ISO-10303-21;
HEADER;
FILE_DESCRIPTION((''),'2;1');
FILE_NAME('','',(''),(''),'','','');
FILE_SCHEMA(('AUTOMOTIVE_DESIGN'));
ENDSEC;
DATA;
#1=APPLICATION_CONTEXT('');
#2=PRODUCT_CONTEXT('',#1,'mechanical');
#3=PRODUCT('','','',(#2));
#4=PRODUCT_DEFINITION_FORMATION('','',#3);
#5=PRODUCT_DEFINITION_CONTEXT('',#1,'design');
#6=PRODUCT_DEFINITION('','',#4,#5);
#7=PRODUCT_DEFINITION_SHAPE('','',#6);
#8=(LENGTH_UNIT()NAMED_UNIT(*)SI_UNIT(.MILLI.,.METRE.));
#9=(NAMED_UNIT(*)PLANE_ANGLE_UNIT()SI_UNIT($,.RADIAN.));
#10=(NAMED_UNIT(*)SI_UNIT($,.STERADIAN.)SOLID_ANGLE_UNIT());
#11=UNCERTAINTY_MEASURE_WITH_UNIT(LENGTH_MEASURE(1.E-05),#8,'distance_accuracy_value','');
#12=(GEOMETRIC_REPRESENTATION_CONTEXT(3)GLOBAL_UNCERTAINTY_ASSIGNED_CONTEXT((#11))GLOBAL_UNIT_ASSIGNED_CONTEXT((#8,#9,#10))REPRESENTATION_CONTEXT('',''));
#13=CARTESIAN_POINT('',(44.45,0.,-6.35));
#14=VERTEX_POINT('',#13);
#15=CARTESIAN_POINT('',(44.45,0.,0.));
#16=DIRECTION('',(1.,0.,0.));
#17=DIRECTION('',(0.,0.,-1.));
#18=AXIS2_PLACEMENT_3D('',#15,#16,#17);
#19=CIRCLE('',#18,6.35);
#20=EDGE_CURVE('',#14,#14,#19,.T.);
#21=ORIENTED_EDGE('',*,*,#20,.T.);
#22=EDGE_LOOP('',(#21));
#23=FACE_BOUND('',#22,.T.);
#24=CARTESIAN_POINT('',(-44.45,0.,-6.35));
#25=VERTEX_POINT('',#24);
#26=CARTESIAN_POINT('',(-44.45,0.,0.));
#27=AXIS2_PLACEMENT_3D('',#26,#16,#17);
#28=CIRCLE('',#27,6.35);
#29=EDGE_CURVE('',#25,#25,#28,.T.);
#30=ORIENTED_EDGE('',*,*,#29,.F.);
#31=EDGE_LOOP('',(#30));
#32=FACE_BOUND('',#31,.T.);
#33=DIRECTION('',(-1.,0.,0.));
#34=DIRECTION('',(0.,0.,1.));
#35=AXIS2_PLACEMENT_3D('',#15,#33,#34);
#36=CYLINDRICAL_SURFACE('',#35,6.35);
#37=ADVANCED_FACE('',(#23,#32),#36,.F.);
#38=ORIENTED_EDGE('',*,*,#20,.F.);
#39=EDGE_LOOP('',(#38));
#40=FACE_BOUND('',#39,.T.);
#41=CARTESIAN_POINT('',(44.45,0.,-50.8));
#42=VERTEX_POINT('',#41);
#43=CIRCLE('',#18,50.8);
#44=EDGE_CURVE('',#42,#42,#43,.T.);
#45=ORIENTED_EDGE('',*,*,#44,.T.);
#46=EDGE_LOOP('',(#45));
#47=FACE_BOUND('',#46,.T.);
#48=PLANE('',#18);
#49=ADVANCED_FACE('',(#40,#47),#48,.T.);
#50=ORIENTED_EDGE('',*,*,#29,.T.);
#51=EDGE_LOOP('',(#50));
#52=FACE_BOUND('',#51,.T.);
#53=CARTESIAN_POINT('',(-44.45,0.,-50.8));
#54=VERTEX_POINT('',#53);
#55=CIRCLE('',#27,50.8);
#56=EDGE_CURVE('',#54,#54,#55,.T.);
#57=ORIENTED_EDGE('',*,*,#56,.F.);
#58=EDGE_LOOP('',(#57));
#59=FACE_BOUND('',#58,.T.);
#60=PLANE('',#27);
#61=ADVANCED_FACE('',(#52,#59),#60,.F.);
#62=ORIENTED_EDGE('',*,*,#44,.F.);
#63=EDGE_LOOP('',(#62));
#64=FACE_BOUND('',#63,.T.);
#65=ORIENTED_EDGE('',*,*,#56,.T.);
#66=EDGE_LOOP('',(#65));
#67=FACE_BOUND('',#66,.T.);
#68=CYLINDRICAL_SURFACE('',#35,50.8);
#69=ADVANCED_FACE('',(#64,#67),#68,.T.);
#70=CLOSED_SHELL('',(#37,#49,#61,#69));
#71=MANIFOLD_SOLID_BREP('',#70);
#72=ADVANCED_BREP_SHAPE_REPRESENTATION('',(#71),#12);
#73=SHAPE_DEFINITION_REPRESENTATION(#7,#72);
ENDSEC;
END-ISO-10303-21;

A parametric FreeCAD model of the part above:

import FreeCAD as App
import Part
import Sketcher
from FreeCAD import Vector
Q = App.Units.Quantity

doc = App.newDocument("Part")
body = doc.addObject("PartDesign::Body", "Body")

sketch1 = body.newObject("Sketcher::SketchObject", "Sketch")
sketch1.AttachmentSupport = (doc.getObject("YZ_Plane"), [""])
sketch1.MapMode = "FlatFace"
sketch1.addGeometry(Part.Circle(Vector(0, 0, 0), Vector(0, 0, 1), 50.8), False)
sketch1.addGeometry(Part.Circle(Vector(0, 0, 0), Vector(0, 0, 1), 6.35), False)
sketch1.addConstraint(Sketcher.Constraint("Coincident", 0, 3, -1, 1))
sketch1.addConstraint(Sketcher.Constraint("Coincident", 1, 3, -1, 1))
sketch1.addConstraint(Sketcher.Constraint("Diameter", 0, Q("4 in")))
sketch1.addConstraint(Sketcher.Constraint("Diameter", 1, Q("0.5 in")))
pad1 = body.newObject("PartDesign::Pad", "Pad")
pad1.Profile = sketch1
pad1.Length = Q("3.5 in")
pad1.Midplane = True

doc.recompute()
